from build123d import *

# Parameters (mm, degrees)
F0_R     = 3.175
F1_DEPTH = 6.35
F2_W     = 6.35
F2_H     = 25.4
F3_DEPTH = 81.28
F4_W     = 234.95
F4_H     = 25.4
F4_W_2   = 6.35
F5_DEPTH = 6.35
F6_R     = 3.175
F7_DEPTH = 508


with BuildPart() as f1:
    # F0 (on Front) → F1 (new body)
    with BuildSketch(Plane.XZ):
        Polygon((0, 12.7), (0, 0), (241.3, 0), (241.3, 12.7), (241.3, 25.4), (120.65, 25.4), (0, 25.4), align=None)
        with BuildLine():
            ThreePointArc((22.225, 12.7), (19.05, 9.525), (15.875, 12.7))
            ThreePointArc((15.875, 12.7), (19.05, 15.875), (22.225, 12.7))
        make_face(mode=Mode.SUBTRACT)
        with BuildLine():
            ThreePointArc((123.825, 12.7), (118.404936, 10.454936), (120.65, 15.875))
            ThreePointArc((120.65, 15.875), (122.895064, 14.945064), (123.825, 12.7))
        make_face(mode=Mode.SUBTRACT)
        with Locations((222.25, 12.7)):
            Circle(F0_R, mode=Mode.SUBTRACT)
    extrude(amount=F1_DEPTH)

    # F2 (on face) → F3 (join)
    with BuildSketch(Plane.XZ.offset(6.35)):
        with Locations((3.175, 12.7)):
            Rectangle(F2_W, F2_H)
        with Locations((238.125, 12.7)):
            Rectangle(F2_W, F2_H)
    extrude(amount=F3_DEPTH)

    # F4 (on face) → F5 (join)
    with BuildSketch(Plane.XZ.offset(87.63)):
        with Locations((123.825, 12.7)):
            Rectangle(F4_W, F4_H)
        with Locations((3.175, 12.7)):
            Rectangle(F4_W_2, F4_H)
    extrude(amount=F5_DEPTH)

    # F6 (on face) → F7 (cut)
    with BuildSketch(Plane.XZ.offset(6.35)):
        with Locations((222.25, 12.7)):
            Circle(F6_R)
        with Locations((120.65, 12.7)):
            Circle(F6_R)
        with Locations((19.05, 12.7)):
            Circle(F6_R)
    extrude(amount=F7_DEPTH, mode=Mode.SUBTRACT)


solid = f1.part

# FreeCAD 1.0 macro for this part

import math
import FreeCAD as App
import Part
import Sketcher
Q = App.Units.Quantity


def add_polygon(sketch, points):
    """Adds a closed chain of lines whose ends are joined by coincident constraints."""
    first, n = sketch.GeometryCount, len(points)
    for a, b in zip(points, points[1:] + points[:1]):
        sketch.addGeometry(Part.LineSegment(App.Vector(*a, 0), App.Vector(*b, 0)), False)
    for i in range(n):
        sketch.addConstraint(Sketcher.Constraint("Coincident", first + i, 2, first + (i + 1) % n, 1))

doc = App.newDocument("Part")
body = doc.addObject("PartDesign::Body", "Body")

sketch1 = body.newObject("Sketcher::SketchObject", "Sketch")
sketch1.AttachmentSupport = (doc.getObject("XZ_Plane"), [""])
sketch1.MapMode = "FlatFace"
add_polygon(sketch1, [(0, 0), (241.3, 0), (241.3, 25.4), (0, 25.4)])
sketch1.addGeometry(Part.Circle(App.Vector(19.05, 12.7, 0), App.Vector(0, 0, 1), 3.175), False)
sketch1.addGeometry(Part.ArcOfCircle(Part.Circle(App.Vector(120.65, 12.7, 0), App.Vector(0, 0, 1), 3.175), math.radians(0.000002), math.radians(89.999998)), False)
sketch1.addGeometry(Part.ArcOfCircle(Part.Circle(App.Vector(120.65, 12.7, 0), App.Vector(0, 0, 1), 3.175), math.radians(90), math.radians(360)), False)
sketch1.addGeometry(Part.Circle(App.Vector(222.25, 12.7, 0), App.Vector(0, 0, 1), 3.175), False)
sketch1.addConstraint([
    Sketcher.Constraint("Tangent", 5, 1, 6, 2),
    Sketcher.Constraint("Coincident", 6, 1, 5, 2),
    Sketcher.Constraint("Horizontal", 0),
    Sketcher.Constraint("Vertical", 1),
    Sketcher.Constraint("Horizontal", 2),
    Sketcher.Constraint("Vertical", 3),
    Sketcher.Constraint("Coincident", 3, 2, -1, 1),
    Sketcher.Constraint("Equal", 4, 5),
    Sketcher.Constraint("Equal", 6, 7),
    Sketcher.Constraint("Horizontal", 4, 3, 5, 3),
    Sketcher.Constraint("Horizontal", 6, 3, 7, 3),
    Sketcher.Constraint("Horizontal", 7, 3, 5, 1),
    Sketcher.Constraint("Vertical", 5, 3, 6, 1),
    Sketcher.Constraint("Diameter", 4, Q("0.25 in")),
    Sketcher.Constraint("DistanceY", 1, 1, 1, 2, Q("1 in")),
    Sketcher.Constraint("DistanceX", 0, 1, 0, 2, Q("9.5 in")),
    Sketcher.Constraint("DistanceX", 4, 3, 5, 3, Q("4 in")),
    Sketcher.Constraint("DistanceX", 6, 3, 7, 3, Q("4 in")),
    Sketcher.Constraint("DistanceY", -1, 1, 4, 3, Q("0.5 in")),
    Sketcher.Constraint("DistanceX", -1, 1, 4, 3, Q("0.75 in")),
])
pad1 = body.newObject("PartDesign::Pad", "Pad")
pad1.Profile = sketch1
pad1.Length = Q("0.25 in")

sketch2 = body.newObject("Sketcher::SketchObject", "Sketch001")
sketch2.AttachmentSupport = (doc.getObject("XZ_Plane"), [""])
sketch2.MapMode = "FlatFace"
sketch2.AttachmentOffset = App.Placement(App.Vector(0, 0, 0.25 * 25.4), App.Rotation())
add_polygon(sketch2, [(0, 25.4), (0, 0), (6.35, 0), (6.35, 25.4)])
add_polygon(sketch2, [(234.95, 25.4), (234.95, 0), (241.3, 0), (241.3, 25.4)])
sketch2.addConstraint([
    Sketcher.Constraint("Vertical", 0),
    Sketcher.Constraint("Horizontal", 1),
    Sketcher.Constraint("Vertical", 2),
    Sketcher.Constraint("Horizontal", 3),
    Sketcher.Constraint("Vertical", 4),
    Sketcher.Constraint("Horizontal", 5),
    Sketcher.Constraint("Vertical", 6),
    Sketcher.Constraint("Horizontal", 7),
    Sketcher.Constraint("Coincident", 0, 2, -1, 1),
    Sketcher.Constraint("PointOnObject", 4, 2, -1),
    Sketcher.Constraint("Horizontal", 3, 2, 6, 2),
    Sketcher.Constraint("Equal", 3, 5),
    Sketcher.Constraint("DistanceY", 0, 2, 0, 1, Q("1 in")),
    Sketcher.Constraint("DistanceX", 1, 2, 4, 2, Q("9 in")),
    Sketcher.Constraint("DistanceX", 1, 1, 1, 2, Q("0.25 in")),
])
pad2 = body.newObject("PartDesign::Pad", "Pad001")
pad2.Profile = sketch2
pad2.Length = Q("3.2 in")

sketch3 = body.newObject("Sketcher::SketchObject", "Sketch002")
sketch3.AttachmentSupport = (doc.getObject("XZ_Plane"), [""])
sketch3.MapMode = "FlatFace"
sketch3.AttachmentOffset = App.Placement(App.Vector(0, 0, 3.45 * 25.4), App.Rotation())
add_polygon(sketch3, [(241.3, 0), (241.3, 25.4), (0, 25.4), (0, 0)])
sketch3.addConstraint([
    Sketcher.Constraint("Vertical", 0),
    Sketcher.Constraint("Horizontal", 1),
    Sketcher.Constraint("Vertical", 2),
    Sketcher.Constraint("Horizontal", 3),
    Sketcher.Constraint("Coincident", 2, 2, -1, 1),
    Sketcher.Constraint("DistanceY", 0, 1, 0, 2, Q("1 in")),
    Sketcher.Constraint("DistanceX", 1, 2, 1, 1, Q("9.5 in")),
])
pad3 = body.newObject("PartDesign::Pad", "Pad002")
pad3.Profile = sketch3
pad3.Length = Q("0.25 in")

sketch4 = body.newObject("Sketcher::SketchObject", "Sketch003")
sketch4.AttachmentSupport = (doc.getObject("XZ_Plane"), [""])
sketch4.MapMode = "FlatFace"
sketch4.AttachmentOffset = App.Placement(App.Vector(0, 0, 0.25 * 25.4), App.Rotation())
sketch4.addGeometry([
    Part.Circle(App.Vector(222.25, 12.7, 0), App.Vector(0, 0, 1), 3.175),
    Part.Circle(App.Vector(120.65, 12.7, 0), App.Vector(0, 0, 1), 3.175),
    Part.Circle(App.Vector(19.05, 12.7, 0), App.Vector(0, 0, 1), 3.175),
], False)
sketch4.addConstraint([
    Sketcher.Constraint("Equal", 0, 1),
    Sketcher.Constraint("Equal", 1, 2),
    Sketcher.Constraint("Horizontal", 0, 3, 1, 3),
    Sketcher.Constraint("Horizontal", 1, 3, 2, 3),
    Sketcher.Constraint("Diameter", 0, Q("0.25 in")),
    Sketcher.Constraint("DistanceX", 1, 3, 0, 3, Q("4 in")),
    Sketcher.Constraint("DistanceX", 2, 3, 1, 3, Q("4 in")),
    Sketcher.Constraint("DistanceY", -1, 1, 0, 3, Q("0.5 in")),
    Sketcher.Constraint("DistanceX", -1, 1, 0, 3, Q("8.75 in")),
])
pocket1 = body.newObject("PartDesign::Pocket", "Pocket")
pocket1.Profile = sketch4
pocket1.Length = Q("20 in")
pocket1.Reversed = True

doc.recompute()
